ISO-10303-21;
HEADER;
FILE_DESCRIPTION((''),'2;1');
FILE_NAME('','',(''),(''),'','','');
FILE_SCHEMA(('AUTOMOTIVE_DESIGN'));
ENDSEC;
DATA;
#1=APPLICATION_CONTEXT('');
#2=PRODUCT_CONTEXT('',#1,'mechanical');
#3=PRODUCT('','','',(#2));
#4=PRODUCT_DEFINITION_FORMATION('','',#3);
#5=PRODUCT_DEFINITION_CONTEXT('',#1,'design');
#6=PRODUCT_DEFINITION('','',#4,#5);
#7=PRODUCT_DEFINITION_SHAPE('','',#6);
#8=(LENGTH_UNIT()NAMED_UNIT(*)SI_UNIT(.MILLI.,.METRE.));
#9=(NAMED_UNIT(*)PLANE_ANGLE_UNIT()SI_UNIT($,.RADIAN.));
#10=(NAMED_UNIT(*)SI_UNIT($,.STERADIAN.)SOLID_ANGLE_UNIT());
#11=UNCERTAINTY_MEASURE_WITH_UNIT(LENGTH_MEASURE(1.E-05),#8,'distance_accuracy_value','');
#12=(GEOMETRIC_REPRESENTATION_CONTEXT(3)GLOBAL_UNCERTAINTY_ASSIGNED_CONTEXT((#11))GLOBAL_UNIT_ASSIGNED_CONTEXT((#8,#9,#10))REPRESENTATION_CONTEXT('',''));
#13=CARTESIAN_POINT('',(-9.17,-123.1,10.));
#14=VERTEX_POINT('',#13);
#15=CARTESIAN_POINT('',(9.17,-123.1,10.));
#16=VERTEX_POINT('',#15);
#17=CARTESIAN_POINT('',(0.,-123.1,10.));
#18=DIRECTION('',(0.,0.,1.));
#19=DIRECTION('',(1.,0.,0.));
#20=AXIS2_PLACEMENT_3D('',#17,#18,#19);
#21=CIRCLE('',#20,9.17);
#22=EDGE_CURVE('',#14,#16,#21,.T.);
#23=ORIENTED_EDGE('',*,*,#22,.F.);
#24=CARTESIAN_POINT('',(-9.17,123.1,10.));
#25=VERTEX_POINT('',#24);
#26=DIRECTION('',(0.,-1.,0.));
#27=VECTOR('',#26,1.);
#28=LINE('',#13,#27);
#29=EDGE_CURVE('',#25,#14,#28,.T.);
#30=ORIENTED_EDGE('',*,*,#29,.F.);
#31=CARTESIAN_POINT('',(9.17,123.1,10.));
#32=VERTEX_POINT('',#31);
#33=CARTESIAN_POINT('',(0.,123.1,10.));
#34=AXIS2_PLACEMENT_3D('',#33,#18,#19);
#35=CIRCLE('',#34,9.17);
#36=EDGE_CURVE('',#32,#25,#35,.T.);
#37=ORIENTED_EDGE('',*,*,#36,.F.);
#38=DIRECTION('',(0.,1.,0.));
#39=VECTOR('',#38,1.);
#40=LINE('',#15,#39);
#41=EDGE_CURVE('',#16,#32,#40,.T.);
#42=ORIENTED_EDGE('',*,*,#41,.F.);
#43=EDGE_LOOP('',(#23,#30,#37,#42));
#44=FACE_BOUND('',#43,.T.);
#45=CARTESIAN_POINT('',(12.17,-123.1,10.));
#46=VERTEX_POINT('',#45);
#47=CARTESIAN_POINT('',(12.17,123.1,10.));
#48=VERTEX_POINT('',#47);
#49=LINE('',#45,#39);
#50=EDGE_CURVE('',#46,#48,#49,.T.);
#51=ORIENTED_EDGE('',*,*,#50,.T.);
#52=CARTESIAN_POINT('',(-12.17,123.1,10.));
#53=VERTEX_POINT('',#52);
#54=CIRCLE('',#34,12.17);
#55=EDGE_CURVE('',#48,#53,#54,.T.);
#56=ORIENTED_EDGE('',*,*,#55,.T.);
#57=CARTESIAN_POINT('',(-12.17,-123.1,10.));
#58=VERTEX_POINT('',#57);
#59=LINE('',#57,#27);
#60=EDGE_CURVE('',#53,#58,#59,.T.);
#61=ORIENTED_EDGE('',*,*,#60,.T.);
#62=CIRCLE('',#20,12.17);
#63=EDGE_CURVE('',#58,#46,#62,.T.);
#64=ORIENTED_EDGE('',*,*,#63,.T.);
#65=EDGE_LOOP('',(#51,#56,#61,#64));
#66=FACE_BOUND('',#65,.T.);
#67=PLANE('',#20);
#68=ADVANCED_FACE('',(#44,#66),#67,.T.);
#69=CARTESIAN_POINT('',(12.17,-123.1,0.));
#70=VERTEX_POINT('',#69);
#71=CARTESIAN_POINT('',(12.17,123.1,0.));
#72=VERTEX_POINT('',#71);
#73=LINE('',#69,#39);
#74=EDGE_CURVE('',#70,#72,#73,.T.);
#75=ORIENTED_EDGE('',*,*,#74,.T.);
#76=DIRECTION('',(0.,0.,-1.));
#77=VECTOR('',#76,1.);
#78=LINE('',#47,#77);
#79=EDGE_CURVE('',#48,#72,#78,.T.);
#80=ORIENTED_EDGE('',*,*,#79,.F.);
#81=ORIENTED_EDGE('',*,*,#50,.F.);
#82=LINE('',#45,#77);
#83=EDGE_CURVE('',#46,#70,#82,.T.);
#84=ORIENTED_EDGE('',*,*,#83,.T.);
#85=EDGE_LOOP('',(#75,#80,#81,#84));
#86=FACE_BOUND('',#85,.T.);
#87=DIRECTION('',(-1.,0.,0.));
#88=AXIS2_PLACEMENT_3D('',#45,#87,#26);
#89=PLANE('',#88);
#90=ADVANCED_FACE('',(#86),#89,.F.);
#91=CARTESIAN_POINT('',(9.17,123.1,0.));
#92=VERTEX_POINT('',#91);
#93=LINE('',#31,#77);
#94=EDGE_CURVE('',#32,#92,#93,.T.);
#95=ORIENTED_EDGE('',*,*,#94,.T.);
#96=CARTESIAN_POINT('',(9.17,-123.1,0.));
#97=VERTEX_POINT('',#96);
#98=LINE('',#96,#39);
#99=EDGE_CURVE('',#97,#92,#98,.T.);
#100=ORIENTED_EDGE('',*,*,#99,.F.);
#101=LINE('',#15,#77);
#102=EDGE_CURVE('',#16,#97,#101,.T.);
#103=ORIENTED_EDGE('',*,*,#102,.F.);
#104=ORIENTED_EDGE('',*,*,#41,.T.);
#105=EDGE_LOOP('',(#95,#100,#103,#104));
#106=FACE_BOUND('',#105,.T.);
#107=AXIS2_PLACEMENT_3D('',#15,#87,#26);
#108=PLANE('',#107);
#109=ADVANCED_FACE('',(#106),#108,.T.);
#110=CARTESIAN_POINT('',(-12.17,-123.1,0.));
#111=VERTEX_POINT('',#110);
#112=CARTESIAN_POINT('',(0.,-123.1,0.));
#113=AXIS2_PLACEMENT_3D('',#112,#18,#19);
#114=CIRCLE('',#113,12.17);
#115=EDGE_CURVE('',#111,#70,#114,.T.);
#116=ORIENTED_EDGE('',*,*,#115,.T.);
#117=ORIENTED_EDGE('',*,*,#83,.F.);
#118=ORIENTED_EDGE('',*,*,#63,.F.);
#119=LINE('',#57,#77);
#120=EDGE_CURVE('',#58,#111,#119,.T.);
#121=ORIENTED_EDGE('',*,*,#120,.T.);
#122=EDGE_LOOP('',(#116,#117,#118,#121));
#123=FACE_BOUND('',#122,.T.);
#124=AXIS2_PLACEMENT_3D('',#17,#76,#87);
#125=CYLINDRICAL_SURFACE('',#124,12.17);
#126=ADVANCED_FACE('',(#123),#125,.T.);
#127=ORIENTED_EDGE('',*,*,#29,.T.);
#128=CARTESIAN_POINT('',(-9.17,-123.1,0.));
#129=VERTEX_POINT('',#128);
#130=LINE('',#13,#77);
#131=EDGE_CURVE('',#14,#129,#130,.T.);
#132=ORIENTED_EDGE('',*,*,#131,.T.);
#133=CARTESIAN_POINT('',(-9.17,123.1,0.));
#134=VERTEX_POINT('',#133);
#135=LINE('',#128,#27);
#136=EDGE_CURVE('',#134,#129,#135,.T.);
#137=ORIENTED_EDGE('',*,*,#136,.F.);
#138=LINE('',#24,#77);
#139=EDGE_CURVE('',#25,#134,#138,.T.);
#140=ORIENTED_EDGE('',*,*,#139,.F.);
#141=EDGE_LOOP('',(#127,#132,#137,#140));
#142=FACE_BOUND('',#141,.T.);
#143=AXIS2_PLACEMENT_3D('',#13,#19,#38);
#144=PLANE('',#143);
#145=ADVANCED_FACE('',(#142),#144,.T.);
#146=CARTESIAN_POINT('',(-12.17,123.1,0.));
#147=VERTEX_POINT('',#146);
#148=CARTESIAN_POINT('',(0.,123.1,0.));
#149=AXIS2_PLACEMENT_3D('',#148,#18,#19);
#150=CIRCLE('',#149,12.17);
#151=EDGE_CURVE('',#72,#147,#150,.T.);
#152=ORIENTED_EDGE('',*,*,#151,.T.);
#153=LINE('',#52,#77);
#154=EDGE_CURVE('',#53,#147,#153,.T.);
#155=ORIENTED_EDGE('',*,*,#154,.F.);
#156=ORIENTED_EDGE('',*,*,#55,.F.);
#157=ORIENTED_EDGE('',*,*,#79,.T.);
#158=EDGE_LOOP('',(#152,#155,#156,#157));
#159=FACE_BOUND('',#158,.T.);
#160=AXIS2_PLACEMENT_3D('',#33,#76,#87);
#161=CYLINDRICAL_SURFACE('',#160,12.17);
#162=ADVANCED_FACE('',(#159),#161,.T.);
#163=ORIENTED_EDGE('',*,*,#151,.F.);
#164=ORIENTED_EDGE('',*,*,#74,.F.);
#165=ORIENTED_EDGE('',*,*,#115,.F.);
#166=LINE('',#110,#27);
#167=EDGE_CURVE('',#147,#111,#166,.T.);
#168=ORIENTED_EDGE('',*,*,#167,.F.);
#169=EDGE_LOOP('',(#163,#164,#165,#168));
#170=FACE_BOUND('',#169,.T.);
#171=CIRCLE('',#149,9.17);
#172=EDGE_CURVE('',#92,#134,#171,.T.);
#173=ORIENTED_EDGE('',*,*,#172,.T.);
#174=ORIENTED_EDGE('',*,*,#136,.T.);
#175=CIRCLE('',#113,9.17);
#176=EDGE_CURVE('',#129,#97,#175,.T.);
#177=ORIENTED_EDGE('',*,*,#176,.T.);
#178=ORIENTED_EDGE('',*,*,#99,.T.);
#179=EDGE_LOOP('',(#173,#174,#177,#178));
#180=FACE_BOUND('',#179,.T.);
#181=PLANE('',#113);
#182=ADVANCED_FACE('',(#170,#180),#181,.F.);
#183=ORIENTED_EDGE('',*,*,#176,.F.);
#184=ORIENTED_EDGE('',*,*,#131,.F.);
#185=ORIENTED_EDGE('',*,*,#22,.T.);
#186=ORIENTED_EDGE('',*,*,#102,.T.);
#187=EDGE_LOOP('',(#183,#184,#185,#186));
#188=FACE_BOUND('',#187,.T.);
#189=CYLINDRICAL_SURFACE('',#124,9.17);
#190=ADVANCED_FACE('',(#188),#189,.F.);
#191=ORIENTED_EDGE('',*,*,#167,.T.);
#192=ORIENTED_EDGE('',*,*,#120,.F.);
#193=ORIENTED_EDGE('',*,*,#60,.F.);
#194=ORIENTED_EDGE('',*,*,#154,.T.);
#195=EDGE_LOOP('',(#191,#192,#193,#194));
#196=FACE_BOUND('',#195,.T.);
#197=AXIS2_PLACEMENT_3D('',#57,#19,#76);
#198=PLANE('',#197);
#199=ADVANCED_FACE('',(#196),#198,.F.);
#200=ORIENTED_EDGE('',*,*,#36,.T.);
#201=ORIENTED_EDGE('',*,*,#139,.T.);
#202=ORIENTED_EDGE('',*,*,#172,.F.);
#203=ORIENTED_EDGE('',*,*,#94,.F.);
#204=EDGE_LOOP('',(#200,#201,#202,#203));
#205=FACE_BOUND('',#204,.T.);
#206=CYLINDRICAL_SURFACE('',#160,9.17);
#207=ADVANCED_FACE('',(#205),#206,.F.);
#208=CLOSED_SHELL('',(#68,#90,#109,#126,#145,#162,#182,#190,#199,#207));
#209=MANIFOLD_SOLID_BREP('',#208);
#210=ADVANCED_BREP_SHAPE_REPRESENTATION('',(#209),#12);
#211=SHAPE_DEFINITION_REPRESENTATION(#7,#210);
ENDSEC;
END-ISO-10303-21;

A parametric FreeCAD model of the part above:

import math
import FreeCAD as App
import Part
import Sketcher
from FreeCAD import Vector

doc = App.newDocument("Part")
params = doc.addObject("Spreadsheet::Sheet", "Params")
for row, (alias, value) in enumerate([
    ("sketch1_radius", "12.17 mm"),
    ("sketch1_radius2", "9.17 mm"),
    ("sketch1_height", "246.2 mm"),
    ("pad1_length", "10 mm"),
], start=1):
    params.set(f"A{row}", alias)
    params.set(f"B{row}", "=" + value)
    params.setAlias(f"B{row}", alias)

body = doc.addObject("PartDesign::Body", "Body")

sketch1 = doc.addObject("Sketcher::SketchObject", "Sketch")
body.addObject(sketch1)
sketch1.AttachmentSupport = (doc.XY_Plane, [""])
sketch1.MapMode = "FlatFace"
sketch1.addGeometry(Part.LineSegment(Vector(-12, 123, 0), Vector(-12, -123, 0)), False)
sketch1.addGeometry(Part.ArcOfCircle(Part.Circle(Vector(0, -123, 0), Vector(0, 0, 1), 12), math.radians(180), math.radians(360)), False)
sketch1.addGeometry(Part.LineSegment(Vector(12, -123, 0), Vector(12, 123, 0)), False)
sketch1.addGeometry(Part.ArcOfCircle(Part.Circle(Vector(0, 123, 0), Vector(0, 0, 1), 12), math.radians(0), math.radians(180)), False)
sketch1.addGeometry(Part.LineSegment(Vector(-9, -123, 0), Vector(-9, 123, 0)), False)
sketch1.addGeometry(Part.ArcOfCircle(Part.Circle(Vector(0, 123, 0), Vector(0, 0, 1), 9), math.radians(0), math.radians(180)), False)
sketch1.addGeometry(Part.LineSegment(Vector(9, 123, 0), Vector(9, -123, 0)), False)
sketch1.addGeometry(Part.ArcOfCircle(Part.Circle(Vector(0, -123, 0), Vector(0, 0, 1), 9), math.radians(180), math.radians(360)), False)
sketch1.addConstraint(Sketcher.Constraint("Tangent", 0, 2, 1, 1))
sketch1.addConstraint(Sketcher.Constraint("Tangent", 1, 2, 2, 1))
sketch1.addConstraint(Sketcher.Constraint("Tangent", 2, 2, 3, 1))
sketch1.addConstraint(Sketcher.Constraint("Tangent", 3, 2, 0, 1))
sketch1.addConstraint(Sketcher.Constraint("Tangent", 4, 2, 5, 2))
sketch1.addConstraint(Sketcher.Constraint("Tangent", 5, 1, 6, 1))
sketch1.addConstraint(Sketcher.Constraint("Tangent", 6, 2, 7, 2))
sketch1.addConstraint(Sketcher.Constraint("Tangent", 7, 1, 4, 1))
sketch1.addConstraint(Sketcher.Constraint("Vertical", 0))
sketch1.addConstraint(Sketcher.Constraint("Vertical", 2))
sketch1.addConstraint(Sketcher.Constraint("Vertical", 4))
sketch1.addConstraint(Sketcher.Constraint("Vertical", 6))
sketch1.addConstraint(Sketcher.Constraint("Coincident", 5, 3, 3, 3))
sketch1.addConstraint(Sketcher.Constraint("Symmetric", 1, 3, 3, 3, -1, 1))
sketch1.addConstraint(Sketcher.Constraint("Horizontal", 7, 3, 0, 2))
sketch1.addConstraint(Sketcher.Constraint("Radius", 1, 12.17))
sketch1.addConstraint(Sketcher.Constraint("Radius", 5, 9.17))
sketch1.addConstraint(Sketcher.Constraint("DistanceY", 0, 2, 0, 1, 246.2))
sketch1.setExpression("Constraints[15]", "Params.sketch1_radius")
sketch1.setExpression("Constraints[16]", "Params.sketch1_radius2")
sketch1.setExpression("Constraints[17]", "Params.sketch1_height")
pad1 = doc.addObject("PartDesign::Pad", "Pad")
body.addObject(pad1)
pad1.Profile = sketch1
pad1.setExpression("Length", "Params.pad1_length")

doc.recompute()
